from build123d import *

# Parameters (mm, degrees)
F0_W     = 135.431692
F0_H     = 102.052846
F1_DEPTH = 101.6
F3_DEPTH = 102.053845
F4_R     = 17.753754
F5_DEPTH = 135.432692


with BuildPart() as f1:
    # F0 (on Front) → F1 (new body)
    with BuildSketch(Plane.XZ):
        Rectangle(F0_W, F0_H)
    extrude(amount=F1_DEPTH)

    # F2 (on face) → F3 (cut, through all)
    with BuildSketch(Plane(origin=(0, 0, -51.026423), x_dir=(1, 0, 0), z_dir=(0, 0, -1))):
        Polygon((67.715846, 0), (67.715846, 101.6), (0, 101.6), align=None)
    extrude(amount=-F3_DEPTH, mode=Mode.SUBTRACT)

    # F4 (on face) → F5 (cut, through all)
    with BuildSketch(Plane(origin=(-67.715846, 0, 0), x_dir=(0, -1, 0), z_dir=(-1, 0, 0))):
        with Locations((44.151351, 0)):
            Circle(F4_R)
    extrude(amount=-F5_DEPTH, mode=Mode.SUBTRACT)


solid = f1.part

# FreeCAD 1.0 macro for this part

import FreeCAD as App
import Part
import Sketcher
Q = App.Units.Quantity

doc = App.newDocument("Part")
body = doc.addObject("PartDesign::Body", "Body")

sketch1 = body.newObject("Sketcher::SketchObject", "Sketch")
sketch1.AttachmentSupport = (doc.getObject("XZ_Plane"), [""])
sketch1.MapMode = "FlatFace"
sketch1.addGeometry([
    Part.LineSegment(App.Vector(-67.715846, 51.026423, 0), App.Vector(-67.715846, -51.026423, 0)),
    Part.LineSegment(App.Vector(-67.715846, -51.026423, 0), App.Vector(67.715846, -51.026423, 0)),
    Part.LineSegment(App.Vector(67.715846, -51.026423, 0), App.Vector(67.715846, 51.026423, 0)),
    Part.LineSegment(App.Vector(67.715846, 51.026423, 0), App.Vector(-67.715846, 51.026423, 0)),
], False)
sketch1.addConstraint([
    Sketcher.Constraint("Coincident", 0, 2, 1, 1),
    Sketcher.Constraint("Coincident", 1, 2, 2, 1),
    Sketcher.Constraint("Coincident", 2, 2, 3, 1),
    Sketcher.Constraint("Coincident", 3, 2, 0, 1),
    Sketcher.Constraint("Vertical", 0),
    Sketcher.Constraint("Horizontal", 1),
    Sketcher.Constraint("Vertical", 2),
    Sketcher.Constraint("Horizontal", 3),
    Sketcher.Constraint("Symmetric", 0, 2, 2, 2, -1, 1),
    Sketcher.Constraint("DistanceX", 1, 1, 1, 2, Q("135.431692 mm")),
    Sketcher.Constraint("DistanceY", 0, 2, 0, 1, Q("102.052846 mm")),
])
pad1 = body.newObject("PartDesign::Pad", "Pad")
pad1.Profile = sketch1
pad1.Length = Q("4 in")

sketch2 = body.newObject("Sketcher::SketchObject", "Sketch001")
sketch2.AttachmentSupport = (doc.getObject("XY_Plane"), [""])
sketch2.MapMode = "FlatFace"
sketch2.AttachmentOffset = App.Placement(App.Vector(0, 0, -51.026423), App.Rotation())
sketch2.addGeometry([
    Part.LineSegment(App.Vector(67.715846, 0, 0), App.Vector(67.715846, -101.6, 0)),
    Part.LineSegment(App.Vector(67.715846, -101.6, 0), App.Vector(0, -101.6, 0)),
    Part.LineSegment(App.Vector(0, -101.6, 0), App.Vector(67.715846, 0, 0)),
], False)
sketch2.addConstraint([
    Sketcher.Constraint("Coincident", 0, 2, 1, 1),
    Sketcher.Constraint("Coincident", 1, 2, 2, 1),
    Sketcher.Constraint("Coincident", 2, 2, 0, 1),
    Sketcher.Constraint("Vertical", 0),
    Sketcher.Constraint("Horizontal", 1),
    Sketcher.Constraint("PointOnObject", 1, 2, -2),
    Sketcher.Constraint("PointOnObject", 2, 2, -1),
    Sketcher.Constraint("DistanceY", 0, 2, 0, 1, Q("4 in")),
    Sketcher.Constraint("DistanceX", 1, 2, 1, 1, Q("67.715846 mm")),
])
pocket1 = body.newObject("PartDesign::Pocket", "Pocket")
pocket1.Profile = sketch2
pocket1.Type = "ThroughAll"
pocket1.Reversed = True

sketch3 = body.newObject("Sketcher::SketchObject", "Sketch002")
sketch3.AttachmentSupport = (doc.getObject("YZ_Plane"), [""])
sketch3.MapMode = "FlatFace"
sketch3.AttachmentOffset = App.Placement(App.Vector(0, 0, -67.715846), App.Rotation())
sketch3.addGeometry(Part.Circle(App.Vector(-44.151351, 0, 0), App.Vector(0, 0, 1), 17.753754), False)
sketch3.addConstraint([
    Sketcher.Constraint("PointOnObject", 0, 3, -1),
    Sketcher.Constraint("Diameter", 0, Q("35.507508 mm")),
    Sketcher.Constraint("DistanceX", 0, 3, -1, 1, Q("44.151351 mm")),
])
pocket2 = body.newObject("PartDesign::Pocket", "Pocket001")
pocket2.Profile = sketch3
pocket2.Type = "ThroughAll"
pocket2.Reversed = True

doc.recompute()
